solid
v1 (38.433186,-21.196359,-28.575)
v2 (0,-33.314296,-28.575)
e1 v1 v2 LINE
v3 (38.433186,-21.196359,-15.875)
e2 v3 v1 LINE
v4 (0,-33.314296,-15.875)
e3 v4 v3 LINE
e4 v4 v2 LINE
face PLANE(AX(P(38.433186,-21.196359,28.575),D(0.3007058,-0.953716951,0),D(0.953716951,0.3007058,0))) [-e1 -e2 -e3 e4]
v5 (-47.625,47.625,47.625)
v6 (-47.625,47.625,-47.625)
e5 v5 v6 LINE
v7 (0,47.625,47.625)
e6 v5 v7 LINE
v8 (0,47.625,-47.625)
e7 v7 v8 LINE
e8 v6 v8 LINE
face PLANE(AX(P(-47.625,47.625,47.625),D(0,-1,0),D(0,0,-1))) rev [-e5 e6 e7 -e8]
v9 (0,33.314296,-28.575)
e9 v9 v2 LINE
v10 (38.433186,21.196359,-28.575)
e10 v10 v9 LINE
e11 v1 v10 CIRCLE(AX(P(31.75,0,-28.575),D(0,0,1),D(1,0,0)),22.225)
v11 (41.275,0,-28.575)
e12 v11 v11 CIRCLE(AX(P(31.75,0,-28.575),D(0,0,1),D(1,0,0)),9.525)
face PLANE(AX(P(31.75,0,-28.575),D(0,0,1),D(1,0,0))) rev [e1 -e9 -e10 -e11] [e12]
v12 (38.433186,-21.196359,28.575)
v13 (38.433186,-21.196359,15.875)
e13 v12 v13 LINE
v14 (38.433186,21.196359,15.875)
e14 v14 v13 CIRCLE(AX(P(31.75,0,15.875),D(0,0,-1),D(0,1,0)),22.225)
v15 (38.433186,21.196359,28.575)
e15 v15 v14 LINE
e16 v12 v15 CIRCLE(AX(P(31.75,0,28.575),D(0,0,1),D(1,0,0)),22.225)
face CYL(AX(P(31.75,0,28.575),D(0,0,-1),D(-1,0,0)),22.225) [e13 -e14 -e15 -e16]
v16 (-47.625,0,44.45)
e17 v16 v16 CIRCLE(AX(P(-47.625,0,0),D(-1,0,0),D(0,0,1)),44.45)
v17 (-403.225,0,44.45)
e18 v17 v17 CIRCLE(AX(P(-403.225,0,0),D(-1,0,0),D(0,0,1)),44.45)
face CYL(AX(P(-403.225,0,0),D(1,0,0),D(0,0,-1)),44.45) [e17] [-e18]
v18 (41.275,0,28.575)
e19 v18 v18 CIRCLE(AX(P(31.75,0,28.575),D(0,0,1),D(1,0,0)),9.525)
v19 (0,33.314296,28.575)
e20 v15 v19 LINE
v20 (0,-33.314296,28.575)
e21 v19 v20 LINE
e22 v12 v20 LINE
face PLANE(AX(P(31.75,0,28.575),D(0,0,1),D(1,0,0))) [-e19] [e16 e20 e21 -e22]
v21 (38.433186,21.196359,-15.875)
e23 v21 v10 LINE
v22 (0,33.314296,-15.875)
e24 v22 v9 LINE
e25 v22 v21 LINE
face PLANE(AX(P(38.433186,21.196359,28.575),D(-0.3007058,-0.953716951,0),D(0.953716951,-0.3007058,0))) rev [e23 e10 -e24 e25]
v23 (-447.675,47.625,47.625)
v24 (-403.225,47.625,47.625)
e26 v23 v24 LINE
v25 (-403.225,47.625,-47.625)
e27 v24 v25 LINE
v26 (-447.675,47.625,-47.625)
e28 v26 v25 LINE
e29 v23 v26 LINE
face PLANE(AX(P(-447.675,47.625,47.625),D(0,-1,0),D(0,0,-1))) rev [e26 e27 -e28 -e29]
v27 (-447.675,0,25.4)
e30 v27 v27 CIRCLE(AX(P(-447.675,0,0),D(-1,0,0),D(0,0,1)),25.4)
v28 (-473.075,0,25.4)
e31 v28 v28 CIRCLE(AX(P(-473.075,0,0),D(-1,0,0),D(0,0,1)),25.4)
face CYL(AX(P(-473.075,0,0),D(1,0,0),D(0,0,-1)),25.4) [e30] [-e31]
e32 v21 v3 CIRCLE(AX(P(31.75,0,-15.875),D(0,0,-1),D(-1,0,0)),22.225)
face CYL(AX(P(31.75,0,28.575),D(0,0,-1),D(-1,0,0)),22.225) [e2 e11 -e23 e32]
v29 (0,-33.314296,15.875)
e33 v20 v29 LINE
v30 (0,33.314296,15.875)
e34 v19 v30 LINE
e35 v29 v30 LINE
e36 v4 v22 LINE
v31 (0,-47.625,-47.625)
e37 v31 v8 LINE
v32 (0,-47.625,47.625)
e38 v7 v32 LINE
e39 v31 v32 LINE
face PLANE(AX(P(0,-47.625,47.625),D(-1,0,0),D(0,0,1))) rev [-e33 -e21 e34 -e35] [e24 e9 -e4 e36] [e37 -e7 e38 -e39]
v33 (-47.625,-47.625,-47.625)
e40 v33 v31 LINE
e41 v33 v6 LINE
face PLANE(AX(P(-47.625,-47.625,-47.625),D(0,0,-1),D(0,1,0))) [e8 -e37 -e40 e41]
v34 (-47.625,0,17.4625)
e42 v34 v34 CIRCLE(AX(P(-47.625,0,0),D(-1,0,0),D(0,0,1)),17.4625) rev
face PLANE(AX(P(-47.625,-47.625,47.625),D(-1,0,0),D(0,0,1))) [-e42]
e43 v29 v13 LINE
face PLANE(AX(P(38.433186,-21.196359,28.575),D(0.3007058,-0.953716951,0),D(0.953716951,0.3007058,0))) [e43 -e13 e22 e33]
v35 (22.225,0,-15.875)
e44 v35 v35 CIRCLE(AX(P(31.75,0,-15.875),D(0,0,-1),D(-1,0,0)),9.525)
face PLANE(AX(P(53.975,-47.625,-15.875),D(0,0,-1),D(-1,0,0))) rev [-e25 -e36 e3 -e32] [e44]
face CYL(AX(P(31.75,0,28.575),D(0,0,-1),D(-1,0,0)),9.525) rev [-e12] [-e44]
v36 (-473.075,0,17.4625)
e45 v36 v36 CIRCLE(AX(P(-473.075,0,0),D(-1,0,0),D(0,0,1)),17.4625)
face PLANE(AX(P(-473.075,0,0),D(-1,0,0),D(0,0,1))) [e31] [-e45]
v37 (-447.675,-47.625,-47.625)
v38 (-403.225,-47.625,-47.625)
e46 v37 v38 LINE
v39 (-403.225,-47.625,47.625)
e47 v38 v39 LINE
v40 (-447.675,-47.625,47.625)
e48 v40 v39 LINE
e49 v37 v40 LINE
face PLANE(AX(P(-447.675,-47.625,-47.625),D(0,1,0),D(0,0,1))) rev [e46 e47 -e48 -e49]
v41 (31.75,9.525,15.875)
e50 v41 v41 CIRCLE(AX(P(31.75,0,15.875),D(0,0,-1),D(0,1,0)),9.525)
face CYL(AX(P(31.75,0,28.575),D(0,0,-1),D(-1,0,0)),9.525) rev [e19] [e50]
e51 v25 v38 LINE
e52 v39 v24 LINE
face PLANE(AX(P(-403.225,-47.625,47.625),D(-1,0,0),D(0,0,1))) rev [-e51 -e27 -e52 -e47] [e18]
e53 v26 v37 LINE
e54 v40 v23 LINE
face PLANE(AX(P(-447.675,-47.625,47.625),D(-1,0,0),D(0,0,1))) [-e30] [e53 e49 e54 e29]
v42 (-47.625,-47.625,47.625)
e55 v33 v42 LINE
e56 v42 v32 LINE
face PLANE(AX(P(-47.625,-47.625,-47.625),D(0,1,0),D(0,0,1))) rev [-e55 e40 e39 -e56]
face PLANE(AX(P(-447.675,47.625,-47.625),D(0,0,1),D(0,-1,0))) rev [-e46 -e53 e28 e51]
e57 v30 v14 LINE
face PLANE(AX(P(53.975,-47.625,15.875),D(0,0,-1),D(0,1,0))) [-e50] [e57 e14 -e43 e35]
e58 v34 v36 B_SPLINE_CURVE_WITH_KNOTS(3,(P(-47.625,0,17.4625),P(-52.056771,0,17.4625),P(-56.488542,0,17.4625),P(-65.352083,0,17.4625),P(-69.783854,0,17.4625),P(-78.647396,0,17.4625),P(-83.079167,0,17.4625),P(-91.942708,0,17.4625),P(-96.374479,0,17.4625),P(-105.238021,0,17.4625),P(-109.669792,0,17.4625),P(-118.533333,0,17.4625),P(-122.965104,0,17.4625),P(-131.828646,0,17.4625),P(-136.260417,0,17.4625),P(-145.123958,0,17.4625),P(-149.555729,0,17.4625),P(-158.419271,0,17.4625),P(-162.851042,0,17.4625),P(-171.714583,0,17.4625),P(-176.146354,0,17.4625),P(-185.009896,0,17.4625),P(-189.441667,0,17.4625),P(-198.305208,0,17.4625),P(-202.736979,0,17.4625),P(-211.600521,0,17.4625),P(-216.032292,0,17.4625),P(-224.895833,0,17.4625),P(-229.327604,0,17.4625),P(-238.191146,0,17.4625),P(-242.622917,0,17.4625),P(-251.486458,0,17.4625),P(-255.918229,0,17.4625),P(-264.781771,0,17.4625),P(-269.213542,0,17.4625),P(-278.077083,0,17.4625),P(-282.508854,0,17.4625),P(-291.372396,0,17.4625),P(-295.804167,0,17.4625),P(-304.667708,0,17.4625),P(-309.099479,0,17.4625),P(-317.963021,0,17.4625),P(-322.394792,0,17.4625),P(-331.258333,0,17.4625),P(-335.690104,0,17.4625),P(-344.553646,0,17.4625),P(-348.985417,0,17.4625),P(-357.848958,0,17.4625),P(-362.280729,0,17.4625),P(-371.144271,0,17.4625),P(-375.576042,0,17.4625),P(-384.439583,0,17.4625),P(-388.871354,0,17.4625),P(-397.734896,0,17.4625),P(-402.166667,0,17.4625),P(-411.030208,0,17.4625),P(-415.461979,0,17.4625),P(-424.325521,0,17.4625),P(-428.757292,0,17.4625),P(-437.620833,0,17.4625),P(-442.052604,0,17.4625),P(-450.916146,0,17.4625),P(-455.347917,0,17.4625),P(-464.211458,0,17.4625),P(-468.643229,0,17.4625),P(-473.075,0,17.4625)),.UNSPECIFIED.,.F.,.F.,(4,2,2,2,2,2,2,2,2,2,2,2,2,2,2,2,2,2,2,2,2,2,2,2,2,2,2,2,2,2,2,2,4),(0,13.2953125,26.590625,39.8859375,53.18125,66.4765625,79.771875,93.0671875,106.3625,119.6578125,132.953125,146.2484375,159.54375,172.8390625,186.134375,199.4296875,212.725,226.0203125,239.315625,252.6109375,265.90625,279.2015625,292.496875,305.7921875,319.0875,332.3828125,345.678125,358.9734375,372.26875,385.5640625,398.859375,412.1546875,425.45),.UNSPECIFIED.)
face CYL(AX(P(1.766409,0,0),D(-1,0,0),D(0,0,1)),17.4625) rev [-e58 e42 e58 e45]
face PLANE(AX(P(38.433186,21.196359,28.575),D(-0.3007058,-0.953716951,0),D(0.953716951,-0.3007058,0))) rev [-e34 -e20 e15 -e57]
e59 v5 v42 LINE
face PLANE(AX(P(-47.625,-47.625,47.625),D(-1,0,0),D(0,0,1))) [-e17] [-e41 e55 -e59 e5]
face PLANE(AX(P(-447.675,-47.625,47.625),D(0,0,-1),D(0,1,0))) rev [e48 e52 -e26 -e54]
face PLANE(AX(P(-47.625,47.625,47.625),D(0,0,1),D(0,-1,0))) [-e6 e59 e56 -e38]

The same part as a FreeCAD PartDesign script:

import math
import FreeCAD as App
import Part
import Sketcher

V = App.Vector
Q = App.Units.Quantity


def add_polygon(sketch, points):
    """Adds a closed chain of lines whose ends are joined by coincident constraints."""
    first, n = sketch.GeometryCount, len(points)
    for a, b in zip(points, points[1:] + points[:1]):
        sketch.addGeometry(Part.LineSegment(App.Vector(*a, 0), App.Vector(*b, 0)), False)
    for i in range(n):
        sketch.addConstraint(Sketcher.Constraint("Coincident", first + i, 2, first + (i + 1) % n, 1))

doc = App.newDocument("Part")
params = doc.addObject("Spreadsheet::Sheet", "Params")
for row, (alias, value) in enumerate([
    ("sketch1_width", "3.75 in"),
    ("pad1_length", "1.875 in"),
    ("sketch2_diameter", "3.5 in"),
    ("pad2_length", "14 in"),
    ("sketch3_width", "3.75 in"),
    ("pad3_length", "1.75 in"),
    ("sketch4_diameter", "2 in"),
    ("pad4_length", "1 in"),
    ("sketch5_diameter", "1.375 in"),
    ("pocket1_length", "16.75 in"),
    ("sketch6_diameter", "0.75 in"),
    ("sketch6_radius", "0.875 in"),
    ("pad5_length", "2.25 in"),
    ("sketch7_height", "1.25 in"),
    ("sketch7_width", "2.125 in"),
], start=1):
    params.set(f"A{row}", alias)
    params.set(f"B{row}", "=" + value)
    params.setAlias(f"B{row}", alias)

body = doc.addObject("PartDesign::Body", "Body")

sketch1 = doc.addObject("Sketcher::SketchObject", "Sketch")
body.addObject(sketch1)
sketch1.AttachmentSupport = (doc.YZ_Plane, [""])
sketch1.MapMode = "FlatFace"
add_polygon(sketch1, [(48, 48), (-48, 48), (-48, -48), (48, -48)])
sketch1.addConstraint(Sketcher.Constraint("Horizontal", 0))
sketch1.addConstraint(Sketcher.Constraint("Vertical", 1))
sketch1.addConstraint(Sketcher.Constraint("Horizontal", 2))
sketch1.addConstraint(Sketcher.Constraint("Vertical", 3))
sketch1.addConstraint(Sketcher.Constraint("Symmetric", 0, 2, 2, 2, -1, 1))
sketch1.addConstraint(Sketcher.Constraint("Equal", 2, 1))
sketch1.addConstraint(Sketcher.Constraint("DistanceX", 0, 2, 0, 1, Q("3.75 in")))
sketch1.setExpression("Constraints[10]", "Params.sketch1_width")
pad1 = doc.addObject("PartDesign::Pad", "Pad")
body.addObject(pad1)
pad1.Profile = sketch1
pad1.setExpression("Length", "Params.pad1_length")
pad1.Reversed = True

sketch2 = doc.addObject("Sketcher::SketchObject", "Sketch001")
body.addObject(sketch2)
sketch2.AttachmentSupport = (doc.YZ_Plane, [""])
sketch2.MapMode = "FlatFace"
sketch2.AttachmentOffset = App.Placement(V(0, 0, -1.875 * 25.4), App.Rotation())
sketch2.addGeometry(Part.Circle(V(0, 0, 0), V(0, 0, 1), 44), False)
sketch2.addConstraint(Sketcher.Constraint("Coincident", 0, 3, -1, 1))
sketch2.addConstraint(Sketcher.Constraint("Diameter", 0, Q("3.5 in")))
sketch2.setExpression("Constraints[1]", "Params.sketch2_diameter")
pad2 = doc.addObject("PartDesign::Pad", "Pad001")
body.addObject(pad2)
pad2.Profile = sketch2
pad2.setExpression("Length", "Params.pad2_length")
pad2.Reversed = True

sketch3 = doc.addObject("Sketcher::SketchObject", "Sketch002")
body.addObject(sketch3)
sketch3.AttachmentSupport = (doc.YZ_Plane, [""])
sketch3.MapMode = "FlatFace"
sketch3.AttachmentOffset = App.Placement(V(0, 0, -15.875 * 25.4), App.Rotation())
add_polygon(sketch3, [(48, -48), (-48, -48), (-48, 48), (48, 48)])
sketch3.addConstraint(Sketcher.Constraint("Horizontal", 0))
sketch3.addConstraint(Sketcher.Constraint("Vertical", 1))
sketch3.addConstraint(Sketcher.Constraint("Horizontal", 2))
sketch3.addConstraint(Sketcher.Constraint("Vertical", 3))
sketch3.addConstraint(Sketcher.Constraint("Symmetric", 0, 2, 2, 2, -1, 1))
sketch3.addConstraint(Sketcher.Constraint("Equal", 2, 1))
sketch3.addConstraint(Sketcher.Constraint("DistanceX", 0, 2, 0, 1, Q("3.75 in")))
sketch3.setExpression("Constraints[10]", "Params.sketch3_width")
pad3 = doc.addObject("PartDesign::Pad", "Pad002")
body.addObject(pad3)
pad3.Profile = sketch3
pad3.setExpression("Length", "Params.pad3_length")
pad3.Reversed = True

sketch4 = doc.addObject("Sketcher::SketchObject", "Sketch003")
body.addObject(sketch4)
sketch4.AttachmentSupport = (doc.YZ_Plane, [""])
sketch4.MapMode = "FlatFace"
sketch4.AttachmentOffset = App.Placement(V(0, 0, -17.625 * 25.4), App.Rotation())
sketch4.addGeometry(Part.Circle(V(0, 0, 0), V(0, 0, 1), 25), False)
sketch4.addConstraint(Sketcher.Constraint("Coincident", 0, 3, -1, 1))
sketch4.addConstraint(Sketcher.Constraint("Diameter", 0, Q("2 in")))
sketch4.setExpression("Constraints[1]", "Params.sketch4_diameter")
pad4 = doc.addObject("PartDesign::Pad", "Pad003")
body.addObject(pad4)
pad4.Profile = sketch4
pad4.setExpression("Length", "Params.pad4_length")
pad4.Reversed = True

sketch5 = doc.addObject("Sketcher::SketchObject", "Sketch004")
body.addObject(sketch5)
sketch5.AttachmentSupport = (doc.YZ_Plane, [""])
sketch5.MapMode = "FlatFace"
sketch5.AttachmentOffset = App.Placement(V(0, 0, -1.875 * 25.4), App.Rotation())
sketch5.addGeometry(Part.Circle(V(0, 0, 0), V(0, 0, 1), 17), False)
sketch5.addConstraint(Sketcher.Constraint("Coincident", 0, 3, -1, 1))
sketch5.addConstraint(Sketcher.Constraint("Diameter", 0, Q("1.375 in")))
sketch5.setExpression("Constraints[1]", "Params.sketch5_diameter")
pocket1 = doc.addObject("PartDesign::Pocket", "Pocket")
body.addObject(pocket1)
pocket1.Profile = sketch5
pocket1.setExpression("Length", "Params.pocket1_length")

sketch6 = doc.addObject("Sketcher::SketchObject", "Sketch005")
body.addObject(sketch6)
sketch6.AttachmentSupport = (doc.XY_Plane, [""])
sketch6.MapMode = "FlatFace"
sketch6.addGeometry(Part.LineSegment(V(38, 21, 0), V(0, 33, 0)), False)
sketch6.addGeometry(Part.LineSegment(V(0, 33, 0), V(0, -33, 0)), False)
sketch6.addGeometry(Part.LineSegment(V(0, -33, 0), V(38, -21, 0)), False)
sketch6.addGeometry(Part.ArcOfCircle(Part.Circle(V(32, 0, 0), V(0, 0, 1), 22), math.radians(-73), math.radians(73)), False)
sketch6.addGeometry(Part.Circle(V(32, 0, 0), V(0, 0, 1), 10), False)
sketch6.addConstraint(Sketcher.Constraint("Coincident", 0, 2, 1, 1))
sketch6.addConstraint(Sketcher.Constraint("Coincident", 1, 2, 2, 1))
sketch6.addConstraint(Sketcher.Constraint("Tangent", 2, 2, 3, 1))
sketch6.addConstraint(Sketcher.Constraint("Tangent", 3, 2, 0, 1))
sketch6.addConstraint(Sketcher.Constraint("Vertical", 1))
sketch6.addConstraint(Sketcher.Constraint("Coincident", 4, 3, 3, 3))
sketch6.addConstraint(Sketcher.Constraint("Symmetric", 0, 2, 1, 2, -1, 1))
sketch6.addConstraint(Sketcher.Constraint("PointOnObject", 3, 3, -1))
sketch6.addConstraint(Sketcher.Constraint("Diameter", 4, Q("0.75 in")))
sketch6.addConstraint(Sketcher.Constraint("Radius", 3, Q("0.875 in")))
sketch6.addConstraint(Sketcher.Constraint("Angle", 0, Q("162.5 deg")))
sketch6.addConstraint(Sketcher.Constraint("DistanceX", -1, 1, 3, 3, Q("1.25 in")))
sketch6.setExpression("Constraints[8]", "Params.sketch6_diameter")
sketch6.setExpression("Constraints[9]", "Params.sketch6_radius")
pad5 = doc.addObject("PartDesign::Pad", "Pad004")
body.addObject(pad5)
pad5.Profile = sketch6
pad5.setExpression("Length", "Params.pad5_length")
pad5.Midplane = True

sketch7 = doc.addObject("Sketcher::SketchObject", "Sketch006")
body.addObject(sketch7)
sketch7.AttachmentSupport = (doc.XZ_Plane, [""])
sketch7.MapMode = "FlatFace"
sketch7.AttachmentOffset = App.Placement(V(0, 0, -1.875 * 25.4), App.Rotation())
add_polygon(sketch7, [(54, 16), (54, -16), (0, -16), (0, 16)])
sketch7.addConstraint(Sketcher.Constraint("Vertical", 0))
sketch7.addConstraint(Sketcher.Constraint("Horizontal", 1))
sketch7.addConstraint(Sketcher.Constraint("Vertical", 2))
sketch7.addConstraint(Sketcher.Constraint("Horizontal", 3))
sketch7.addConstraint(Sketcher.Constraint("Symmetric", 1, 2, 2, 2, -1, 1))
sketch7.addConstraint(Sketcher.Constraint("DistanceY", 0, 2, 0, 1, Q("1.25 in")))
sketch7.addConstraint(Sketcher.Constraint("DistanceX", 1, 2, 1, 1, Q("2.125 in")))
sketch7.setExpression("Constraints[9]", "Params.sketch7_height")
sketch7.setExpression("Constraints[10]", "Params.sketch7_width")
pocket2 = doc.addObject("PartDesign::Pocket", "Pocket001")
body.addObject(pocket2)
pocket2.Profile = sketch7
pocket2.Type = "ThroughAll"
pocket2.Reversed = True

doc.recompute()
